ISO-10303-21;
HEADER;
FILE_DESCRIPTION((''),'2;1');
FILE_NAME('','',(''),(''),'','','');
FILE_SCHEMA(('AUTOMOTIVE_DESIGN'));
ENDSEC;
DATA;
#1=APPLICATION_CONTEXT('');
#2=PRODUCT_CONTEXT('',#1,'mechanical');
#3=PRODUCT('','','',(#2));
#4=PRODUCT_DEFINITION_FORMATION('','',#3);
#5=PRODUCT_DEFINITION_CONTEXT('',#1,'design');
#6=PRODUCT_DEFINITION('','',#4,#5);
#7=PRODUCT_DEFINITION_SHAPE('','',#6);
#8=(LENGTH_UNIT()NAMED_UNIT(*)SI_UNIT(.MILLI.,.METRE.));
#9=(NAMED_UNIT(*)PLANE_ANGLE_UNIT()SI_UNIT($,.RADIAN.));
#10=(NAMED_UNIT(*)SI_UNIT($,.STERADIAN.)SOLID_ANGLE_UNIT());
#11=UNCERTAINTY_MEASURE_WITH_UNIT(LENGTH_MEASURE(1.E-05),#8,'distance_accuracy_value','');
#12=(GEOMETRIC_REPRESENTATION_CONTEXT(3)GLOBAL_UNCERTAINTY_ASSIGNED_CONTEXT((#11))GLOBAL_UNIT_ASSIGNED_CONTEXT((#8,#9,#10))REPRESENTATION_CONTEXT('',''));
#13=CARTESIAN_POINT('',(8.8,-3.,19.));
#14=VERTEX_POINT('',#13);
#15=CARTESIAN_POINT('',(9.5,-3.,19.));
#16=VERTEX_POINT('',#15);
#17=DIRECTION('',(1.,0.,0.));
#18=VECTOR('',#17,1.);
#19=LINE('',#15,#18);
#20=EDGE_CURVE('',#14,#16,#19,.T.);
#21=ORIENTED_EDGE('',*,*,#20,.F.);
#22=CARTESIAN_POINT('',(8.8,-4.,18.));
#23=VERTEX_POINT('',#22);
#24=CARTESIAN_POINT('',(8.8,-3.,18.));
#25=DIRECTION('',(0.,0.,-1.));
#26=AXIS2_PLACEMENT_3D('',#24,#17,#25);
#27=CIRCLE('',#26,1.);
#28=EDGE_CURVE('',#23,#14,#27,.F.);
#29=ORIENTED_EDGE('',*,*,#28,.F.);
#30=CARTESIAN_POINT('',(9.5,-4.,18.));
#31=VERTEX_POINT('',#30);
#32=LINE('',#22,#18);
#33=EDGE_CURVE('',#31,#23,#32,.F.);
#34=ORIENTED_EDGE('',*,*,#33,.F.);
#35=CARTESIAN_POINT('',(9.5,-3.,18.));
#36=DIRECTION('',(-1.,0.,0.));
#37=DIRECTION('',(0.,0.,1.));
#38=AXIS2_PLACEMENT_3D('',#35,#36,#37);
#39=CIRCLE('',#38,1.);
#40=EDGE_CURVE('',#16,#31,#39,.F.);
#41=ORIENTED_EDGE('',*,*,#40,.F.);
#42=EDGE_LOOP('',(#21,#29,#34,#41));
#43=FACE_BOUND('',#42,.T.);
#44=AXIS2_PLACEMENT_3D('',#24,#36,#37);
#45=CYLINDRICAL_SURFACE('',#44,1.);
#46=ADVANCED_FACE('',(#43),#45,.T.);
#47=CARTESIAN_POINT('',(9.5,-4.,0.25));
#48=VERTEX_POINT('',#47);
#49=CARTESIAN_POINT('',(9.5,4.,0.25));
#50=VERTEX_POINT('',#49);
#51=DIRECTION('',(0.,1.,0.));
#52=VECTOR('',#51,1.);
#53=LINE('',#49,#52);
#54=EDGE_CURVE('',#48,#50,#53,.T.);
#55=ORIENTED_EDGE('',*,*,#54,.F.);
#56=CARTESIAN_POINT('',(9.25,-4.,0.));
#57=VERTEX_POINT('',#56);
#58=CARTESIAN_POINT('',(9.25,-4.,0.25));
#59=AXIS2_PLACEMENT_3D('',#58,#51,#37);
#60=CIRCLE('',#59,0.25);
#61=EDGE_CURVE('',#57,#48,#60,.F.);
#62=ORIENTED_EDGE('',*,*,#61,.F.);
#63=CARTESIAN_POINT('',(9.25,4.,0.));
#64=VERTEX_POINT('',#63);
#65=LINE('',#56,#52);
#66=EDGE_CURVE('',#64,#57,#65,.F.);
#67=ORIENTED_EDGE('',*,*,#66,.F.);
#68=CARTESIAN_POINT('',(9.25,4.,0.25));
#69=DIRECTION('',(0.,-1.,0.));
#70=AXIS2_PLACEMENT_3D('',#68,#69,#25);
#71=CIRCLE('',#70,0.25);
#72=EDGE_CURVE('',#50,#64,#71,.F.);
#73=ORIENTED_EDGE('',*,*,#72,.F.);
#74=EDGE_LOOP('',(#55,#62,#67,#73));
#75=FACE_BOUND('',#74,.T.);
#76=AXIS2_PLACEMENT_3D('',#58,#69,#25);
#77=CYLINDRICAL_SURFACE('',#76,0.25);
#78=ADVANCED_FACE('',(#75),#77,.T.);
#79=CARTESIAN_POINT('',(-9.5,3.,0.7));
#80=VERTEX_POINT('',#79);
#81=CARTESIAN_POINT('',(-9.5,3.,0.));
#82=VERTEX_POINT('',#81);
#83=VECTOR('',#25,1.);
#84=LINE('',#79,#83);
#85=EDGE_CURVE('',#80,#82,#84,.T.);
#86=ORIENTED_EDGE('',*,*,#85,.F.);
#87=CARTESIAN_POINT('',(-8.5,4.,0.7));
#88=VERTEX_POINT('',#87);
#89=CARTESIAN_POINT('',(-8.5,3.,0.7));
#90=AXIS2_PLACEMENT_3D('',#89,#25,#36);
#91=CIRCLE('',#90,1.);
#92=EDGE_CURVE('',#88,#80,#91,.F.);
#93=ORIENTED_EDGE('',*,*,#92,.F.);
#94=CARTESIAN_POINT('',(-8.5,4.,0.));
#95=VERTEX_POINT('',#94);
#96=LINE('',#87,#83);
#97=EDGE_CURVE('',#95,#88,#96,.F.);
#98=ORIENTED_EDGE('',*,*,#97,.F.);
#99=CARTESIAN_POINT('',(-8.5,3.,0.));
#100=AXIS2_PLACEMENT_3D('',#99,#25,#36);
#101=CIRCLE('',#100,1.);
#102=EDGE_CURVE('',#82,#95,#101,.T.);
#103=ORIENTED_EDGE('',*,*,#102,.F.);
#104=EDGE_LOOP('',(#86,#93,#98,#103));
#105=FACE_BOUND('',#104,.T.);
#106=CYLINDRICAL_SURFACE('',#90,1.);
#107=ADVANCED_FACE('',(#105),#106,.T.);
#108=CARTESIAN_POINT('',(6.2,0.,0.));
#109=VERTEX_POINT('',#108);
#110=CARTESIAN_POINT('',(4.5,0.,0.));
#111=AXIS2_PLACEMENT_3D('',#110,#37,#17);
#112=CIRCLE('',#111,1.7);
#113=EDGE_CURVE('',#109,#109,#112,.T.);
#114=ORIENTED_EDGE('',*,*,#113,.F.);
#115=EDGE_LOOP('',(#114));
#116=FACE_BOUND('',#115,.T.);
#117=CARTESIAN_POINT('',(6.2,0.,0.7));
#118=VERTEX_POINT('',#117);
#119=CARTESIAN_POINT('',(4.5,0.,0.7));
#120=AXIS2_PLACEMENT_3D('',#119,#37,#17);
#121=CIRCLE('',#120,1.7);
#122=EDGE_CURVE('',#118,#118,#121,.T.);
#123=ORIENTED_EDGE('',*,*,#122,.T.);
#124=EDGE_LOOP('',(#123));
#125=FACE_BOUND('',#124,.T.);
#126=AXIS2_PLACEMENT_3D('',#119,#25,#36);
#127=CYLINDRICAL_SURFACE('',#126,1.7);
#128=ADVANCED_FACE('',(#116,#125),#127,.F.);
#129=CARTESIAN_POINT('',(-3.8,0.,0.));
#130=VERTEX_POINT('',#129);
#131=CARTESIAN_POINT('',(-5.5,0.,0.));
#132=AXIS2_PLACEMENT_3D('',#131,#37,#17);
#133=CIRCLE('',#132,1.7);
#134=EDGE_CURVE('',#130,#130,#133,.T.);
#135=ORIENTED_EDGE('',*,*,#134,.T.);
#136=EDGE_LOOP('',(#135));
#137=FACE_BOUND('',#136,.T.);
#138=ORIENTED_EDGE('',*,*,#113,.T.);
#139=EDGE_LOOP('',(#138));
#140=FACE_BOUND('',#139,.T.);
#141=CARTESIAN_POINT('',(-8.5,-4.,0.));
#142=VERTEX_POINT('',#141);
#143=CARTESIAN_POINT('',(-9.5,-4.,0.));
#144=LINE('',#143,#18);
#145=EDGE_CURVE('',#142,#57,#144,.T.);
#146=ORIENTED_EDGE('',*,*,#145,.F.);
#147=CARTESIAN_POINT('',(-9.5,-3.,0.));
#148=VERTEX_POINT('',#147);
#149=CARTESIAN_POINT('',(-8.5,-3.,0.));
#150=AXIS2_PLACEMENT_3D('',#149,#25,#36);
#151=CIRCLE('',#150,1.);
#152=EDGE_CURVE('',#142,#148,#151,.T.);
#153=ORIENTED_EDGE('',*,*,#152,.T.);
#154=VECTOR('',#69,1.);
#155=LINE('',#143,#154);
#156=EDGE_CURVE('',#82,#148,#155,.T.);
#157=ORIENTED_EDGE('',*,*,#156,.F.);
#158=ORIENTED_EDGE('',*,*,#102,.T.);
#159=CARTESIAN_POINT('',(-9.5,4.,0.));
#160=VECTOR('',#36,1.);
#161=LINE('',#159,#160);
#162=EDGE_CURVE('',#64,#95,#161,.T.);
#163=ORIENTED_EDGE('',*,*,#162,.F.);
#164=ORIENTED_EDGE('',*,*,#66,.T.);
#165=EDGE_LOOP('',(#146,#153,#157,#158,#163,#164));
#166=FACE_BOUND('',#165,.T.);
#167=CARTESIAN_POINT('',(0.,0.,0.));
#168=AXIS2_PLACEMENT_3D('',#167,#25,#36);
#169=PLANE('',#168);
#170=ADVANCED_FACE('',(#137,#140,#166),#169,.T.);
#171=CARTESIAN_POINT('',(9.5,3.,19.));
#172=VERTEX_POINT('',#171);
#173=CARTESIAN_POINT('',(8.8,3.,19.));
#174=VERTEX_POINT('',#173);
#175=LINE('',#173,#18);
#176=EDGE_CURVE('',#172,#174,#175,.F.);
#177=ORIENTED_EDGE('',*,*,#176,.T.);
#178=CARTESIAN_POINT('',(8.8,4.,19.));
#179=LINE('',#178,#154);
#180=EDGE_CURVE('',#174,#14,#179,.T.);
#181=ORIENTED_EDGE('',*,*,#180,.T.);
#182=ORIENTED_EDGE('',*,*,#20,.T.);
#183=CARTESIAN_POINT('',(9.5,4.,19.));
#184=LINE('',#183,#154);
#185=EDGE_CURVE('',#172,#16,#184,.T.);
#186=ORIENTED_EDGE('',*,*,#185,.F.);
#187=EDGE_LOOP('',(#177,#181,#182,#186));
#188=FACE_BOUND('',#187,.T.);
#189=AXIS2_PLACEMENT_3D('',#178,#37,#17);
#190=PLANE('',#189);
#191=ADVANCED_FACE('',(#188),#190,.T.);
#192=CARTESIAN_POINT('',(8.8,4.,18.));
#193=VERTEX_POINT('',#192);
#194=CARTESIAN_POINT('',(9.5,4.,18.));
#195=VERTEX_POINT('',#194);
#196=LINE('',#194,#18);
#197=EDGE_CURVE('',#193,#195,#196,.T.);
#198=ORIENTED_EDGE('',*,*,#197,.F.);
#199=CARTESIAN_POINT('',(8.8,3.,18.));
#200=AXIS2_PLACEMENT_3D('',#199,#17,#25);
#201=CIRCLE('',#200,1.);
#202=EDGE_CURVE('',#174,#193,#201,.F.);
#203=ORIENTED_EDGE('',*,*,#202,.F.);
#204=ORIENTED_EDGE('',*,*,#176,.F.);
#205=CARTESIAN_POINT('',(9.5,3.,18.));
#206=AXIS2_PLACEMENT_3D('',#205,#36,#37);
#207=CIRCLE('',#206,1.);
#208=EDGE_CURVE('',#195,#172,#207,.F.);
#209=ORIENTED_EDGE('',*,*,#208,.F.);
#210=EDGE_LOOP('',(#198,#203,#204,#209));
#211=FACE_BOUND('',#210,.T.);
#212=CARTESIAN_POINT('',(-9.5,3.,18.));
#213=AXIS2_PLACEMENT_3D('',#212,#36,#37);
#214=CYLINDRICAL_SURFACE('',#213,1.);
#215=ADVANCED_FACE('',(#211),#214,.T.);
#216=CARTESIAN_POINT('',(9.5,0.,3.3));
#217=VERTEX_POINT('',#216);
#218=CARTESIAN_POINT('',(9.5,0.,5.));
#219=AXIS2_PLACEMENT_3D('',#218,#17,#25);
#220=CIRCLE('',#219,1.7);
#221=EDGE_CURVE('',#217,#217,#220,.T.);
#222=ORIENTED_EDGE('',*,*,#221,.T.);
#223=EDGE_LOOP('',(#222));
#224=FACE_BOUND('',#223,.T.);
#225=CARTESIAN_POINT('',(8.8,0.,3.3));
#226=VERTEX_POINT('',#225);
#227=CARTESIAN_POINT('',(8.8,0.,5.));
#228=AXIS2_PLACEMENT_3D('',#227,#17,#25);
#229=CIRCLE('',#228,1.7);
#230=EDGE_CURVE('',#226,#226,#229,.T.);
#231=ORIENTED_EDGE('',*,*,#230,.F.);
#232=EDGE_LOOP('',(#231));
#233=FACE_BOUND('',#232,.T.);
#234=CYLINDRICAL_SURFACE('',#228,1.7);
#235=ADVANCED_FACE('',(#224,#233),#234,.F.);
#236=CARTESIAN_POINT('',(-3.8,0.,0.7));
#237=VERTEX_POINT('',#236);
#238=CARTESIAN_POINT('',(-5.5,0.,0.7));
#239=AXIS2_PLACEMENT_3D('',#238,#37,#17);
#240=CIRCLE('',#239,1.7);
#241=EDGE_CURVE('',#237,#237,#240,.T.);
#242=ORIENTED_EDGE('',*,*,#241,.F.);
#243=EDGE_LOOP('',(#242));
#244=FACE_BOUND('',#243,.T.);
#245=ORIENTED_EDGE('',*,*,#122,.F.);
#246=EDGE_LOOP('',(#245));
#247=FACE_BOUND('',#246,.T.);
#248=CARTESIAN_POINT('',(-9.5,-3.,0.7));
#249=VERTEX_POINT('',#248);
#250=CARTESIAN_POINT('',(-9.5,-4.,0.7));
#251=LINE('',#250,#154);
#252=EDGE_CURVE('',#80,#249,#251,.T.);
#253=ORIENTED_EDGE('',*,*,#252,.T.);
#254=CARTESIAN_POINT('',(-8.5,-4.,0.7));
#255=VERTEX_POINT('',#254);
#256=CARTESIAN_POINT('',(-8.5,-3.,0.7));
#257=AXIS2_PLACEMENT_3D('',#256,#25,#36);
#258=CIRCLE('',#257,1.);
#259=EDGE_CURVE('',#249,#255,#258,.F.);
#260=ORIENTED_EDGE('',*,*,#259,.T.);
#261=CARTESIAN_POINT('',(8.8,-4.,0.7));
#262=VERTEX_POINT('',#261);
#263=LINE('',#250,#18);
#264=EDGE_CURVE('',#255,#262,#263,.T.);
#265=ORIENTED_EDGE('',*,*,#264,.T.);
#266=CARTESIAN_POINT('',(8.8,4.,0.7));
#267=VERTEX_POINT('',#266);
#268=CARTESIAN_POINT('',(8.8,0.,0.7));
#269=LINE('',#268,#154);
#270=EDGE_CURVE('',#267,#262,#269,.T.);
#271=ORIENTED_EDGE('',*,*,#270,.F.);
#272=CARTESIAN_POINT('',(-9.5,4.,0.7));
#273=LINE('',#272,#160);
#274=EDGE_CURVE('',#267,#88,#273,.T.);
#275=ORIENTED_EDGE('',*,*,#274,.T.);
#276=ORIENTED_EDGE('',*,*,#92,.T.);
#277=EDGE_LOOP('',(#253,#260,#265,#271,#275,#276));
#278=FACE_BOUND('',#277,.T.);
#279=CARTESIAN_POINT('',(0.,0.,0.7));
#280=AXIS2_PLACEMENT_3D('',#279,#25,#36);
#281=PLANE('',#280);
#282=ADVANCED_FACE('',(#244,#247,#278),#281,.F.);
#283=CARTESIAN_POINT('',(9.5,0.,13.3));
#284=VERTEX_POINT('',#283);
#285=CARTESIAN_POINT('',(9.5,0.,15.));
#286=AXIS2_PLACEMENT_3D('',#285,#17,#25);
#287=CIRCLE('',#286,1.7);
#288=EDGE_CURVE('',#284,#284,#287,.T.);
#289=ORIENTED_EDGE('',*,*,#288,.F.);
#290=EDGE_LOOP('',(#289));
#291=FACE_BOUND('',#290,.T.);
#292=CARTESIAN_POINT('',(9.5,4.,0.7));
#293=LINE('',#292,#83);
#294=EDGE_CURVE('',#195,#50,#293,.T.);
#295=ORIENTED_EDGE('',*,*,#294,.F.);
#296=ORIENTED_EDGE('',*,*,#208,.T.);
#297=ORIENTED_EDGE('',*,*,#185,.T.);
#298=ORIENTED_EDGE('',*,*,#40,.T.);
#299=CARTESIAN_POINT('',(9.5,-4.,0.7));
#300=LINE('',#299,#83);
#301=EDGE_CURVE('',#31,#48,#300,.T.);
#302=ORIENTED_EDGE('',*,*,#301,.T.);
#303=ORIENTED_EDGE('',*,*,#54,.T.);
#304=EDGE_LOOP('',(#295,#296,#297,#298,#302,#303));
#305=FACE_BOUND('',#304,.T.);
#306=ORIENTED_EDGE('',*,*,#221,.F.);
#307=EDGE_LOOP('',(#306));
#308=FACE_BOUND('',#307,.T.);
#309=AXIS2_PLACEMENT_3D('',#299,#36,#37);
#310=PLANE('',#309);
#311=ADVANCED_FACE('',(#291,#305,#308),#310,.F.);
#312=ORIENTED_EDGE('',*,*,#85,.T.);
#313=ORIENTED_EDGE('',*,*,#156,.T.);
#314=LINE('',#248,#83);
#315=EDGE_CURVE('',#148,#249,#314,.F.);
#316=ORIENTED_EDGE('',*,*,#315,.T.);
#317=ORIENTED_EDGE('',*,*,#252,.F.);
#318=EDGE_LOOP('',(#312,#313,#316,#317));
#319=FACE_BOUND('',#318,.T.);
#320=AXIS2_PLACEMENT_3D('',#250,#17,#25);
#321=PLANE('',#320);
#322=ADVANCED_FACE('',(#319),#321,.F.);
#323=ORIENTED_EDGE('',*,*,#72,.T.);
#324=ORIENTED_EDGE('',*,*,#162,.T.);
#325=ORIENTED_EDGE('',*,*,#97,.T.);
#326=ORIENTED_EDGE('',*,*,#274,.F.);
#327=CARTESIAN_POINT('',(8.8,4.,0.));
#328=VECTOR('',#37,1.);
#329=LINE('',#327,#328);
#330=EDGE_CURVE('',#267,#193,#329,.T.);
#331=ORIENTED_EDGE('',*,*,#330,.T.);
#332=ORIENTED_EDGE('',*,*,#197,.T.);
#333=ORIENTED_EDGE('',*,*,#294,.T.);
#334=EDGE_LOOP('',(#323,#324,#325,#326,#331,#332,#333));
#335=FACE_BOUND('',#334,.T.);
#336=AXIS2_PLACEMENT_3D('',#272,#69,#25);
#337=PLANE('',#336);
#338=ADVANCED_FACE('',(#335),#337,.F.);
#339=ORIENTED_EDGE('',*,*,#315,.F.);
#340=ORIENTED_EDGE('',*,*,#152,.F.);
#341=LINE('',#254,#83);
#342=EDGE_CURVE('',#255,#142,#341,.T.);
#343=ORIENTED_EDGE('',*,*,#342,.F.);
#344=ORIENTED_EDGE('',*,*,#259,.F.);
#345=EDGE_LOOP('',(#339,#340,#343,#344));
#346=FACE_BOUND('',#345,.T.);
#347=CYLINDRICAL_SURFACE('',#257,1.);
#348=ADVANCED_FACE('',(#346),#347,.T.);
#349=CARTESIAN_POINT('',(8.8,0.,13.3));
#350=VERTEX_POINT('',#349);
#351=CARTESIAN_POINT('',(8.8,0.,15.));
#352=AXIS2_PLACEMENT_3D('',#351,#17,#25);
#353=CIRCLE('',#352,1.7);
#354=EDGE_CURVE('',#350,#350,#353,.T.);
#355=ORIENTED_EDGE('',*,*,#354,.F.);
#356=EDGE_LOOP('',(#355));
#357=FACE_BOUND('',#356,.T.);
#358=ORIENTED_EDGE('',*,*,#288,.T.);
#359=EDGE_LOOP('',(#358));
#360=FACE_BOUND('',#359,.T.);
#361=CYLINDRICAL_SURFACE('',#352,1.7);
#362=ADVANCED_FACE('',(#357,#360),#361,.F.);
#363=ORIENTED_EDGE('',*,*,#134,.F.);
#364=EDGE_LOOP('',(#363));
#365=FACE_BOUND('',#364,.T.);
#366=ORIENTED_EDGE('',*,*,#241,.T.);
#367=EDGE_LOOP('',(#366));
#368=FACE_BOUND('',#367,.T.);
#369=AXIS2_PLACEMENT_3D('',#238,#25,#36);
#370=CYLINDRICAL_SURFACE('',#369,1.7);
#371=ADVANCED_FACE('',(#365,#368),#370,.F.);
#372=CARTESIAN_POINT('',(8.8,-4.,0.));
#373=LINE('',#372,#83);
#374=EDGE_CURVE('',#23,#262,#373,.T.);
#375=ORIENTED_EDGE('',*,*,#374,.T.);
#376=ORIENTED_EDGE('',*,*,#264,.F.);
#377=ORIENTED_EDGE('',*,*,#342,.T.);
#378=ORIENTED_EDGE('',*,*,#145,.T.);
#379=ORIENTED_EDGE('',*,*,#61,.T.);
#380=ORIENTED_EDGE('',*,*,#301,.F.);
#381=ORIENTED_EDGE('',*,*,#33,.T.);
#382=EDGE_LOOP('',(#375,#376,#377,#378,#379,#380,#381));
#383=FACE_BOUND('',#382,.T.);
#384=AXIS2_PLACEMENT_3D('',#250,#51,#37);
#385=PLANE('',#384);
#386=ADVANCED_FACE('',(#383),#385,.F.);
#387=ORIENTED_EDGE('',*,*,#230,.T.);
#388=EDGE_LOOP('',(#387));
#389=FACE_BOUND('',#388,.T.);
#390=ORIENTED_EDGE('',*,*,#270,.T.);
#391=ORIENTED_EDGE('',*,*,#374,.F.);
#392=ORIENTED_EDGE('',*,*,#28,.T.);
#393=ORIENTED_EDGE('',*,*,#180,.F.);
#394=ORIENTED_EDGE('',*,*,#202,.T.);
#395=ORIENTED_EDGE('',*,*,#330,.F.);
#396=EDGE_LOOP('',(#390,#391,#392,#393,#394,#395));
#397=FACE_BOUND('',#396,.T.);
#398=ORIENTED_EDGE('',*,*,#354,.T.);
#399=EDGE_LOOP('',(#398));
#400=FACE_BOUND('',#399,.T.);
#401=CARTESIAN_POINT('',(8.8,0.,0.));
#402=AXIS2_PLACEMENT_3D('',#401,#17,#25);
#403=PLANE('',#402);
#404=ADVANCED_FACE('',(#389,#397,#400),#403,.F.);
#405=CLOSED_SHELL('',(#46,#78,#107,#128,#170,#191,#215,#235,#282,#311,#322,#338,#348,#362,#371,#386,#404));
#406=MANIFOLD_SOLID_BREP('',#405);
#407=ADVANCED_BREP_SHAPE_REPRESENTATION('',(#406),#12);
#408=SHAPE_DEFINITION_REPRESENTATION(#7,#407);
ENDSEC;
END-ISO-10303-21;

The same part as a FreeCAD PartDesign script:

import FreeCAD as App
import Part
import Sketcher
Q = App.Units.Quantity


def edges_at(feature, points):
    """Names of the edges that pass closest to the given points."""
    edges = feature.Shape.Edges
    near = lambda p: min(range(len(edges)), key=lambda i: edges[i].distToShape(Part.Vertex(*p))[0])
    return sorted({f"Edge{near(p) + 1}" for p in points})

doc = App.newDocument("Part")
body = doc.addObject("PartDesign::Body", "Body")

sketch1 = body.newObject("Sketcher::SketchObject", "Sketch")
sketch1.AttachmentSupport = (doc.getObject("XY_Plane"), [""])
sketch1.MapMode = "FlatFace"
sketch1.addGeometry(Part.LineSegment(App.Vector(-9.5, 4, 0), App.Vector(-9.5, -4, 0)), False)
sketch1.addGeometry(Part.LineSegment(App.Vector(-9.5, -4, 0), App.Vector(9.5, -4, 0)), False)
sketch1.addGeometry(Part.LineSegment(App.Vector(9.5, -4, 0), App.Vector(9.5, 4, 0)), False)
sketch1.addGeometry(Part.LineSegment(App.Vector(9.5, 4, 0), App.Vector(-9.5, 4, 0)), False)
sketch1.addGeometry(Part.Circle(App.Vector(-5.5, 0, 0), App.Vector(0, 0, 1), 1.7), False)
sketch1.addGeometry(Part.Circle(App.Vector(4.5, 0, 0), App.Vector(0, 0, 1), 1.7), False)
sketch1.addConstraint(Sketcher.Constraint("Coincident", 0, 2, 1, 1))
sketch1.addConstraint(Sketcher.Constraint("Coincident", 1, 2, 2, 1))
sketch1.addConstraint(Sketcher.Constraint("Coincident", 2, 2, 3, 1))
sketch1.addConstraint(Sketcher.Constraint("Coincident", 3, 2, 0, 1))
sketch1.addConstraint(Sketcher.Constraint("Vertical", 0))
sketch1.addConstraint(Sketcher.Constraint("Horizontal", 1))
sketch1.addConstraint(Sketcher.Constraint("Vertical", 2))
sketch1.addConstraint(Sketcher.Constraint("Horizontal", 3))
sketch1.addConstraint(Sketcher.Constraint("Equal", 4, 5))
sketch1.addConstraint(Sketcher.Constraint("Symmetric", 0, 2, 2, 2, -1, 1))
sketch1.addConstraint(Sketcher.Constraint("PointOnObject", 4, 3, -1))
sketch1.addConstraint(Sketcher.Constraint("PointOnObject", 5, 3, -1))
sketch1.addConstraint(Sketcher.Constraint("Diameter", 4, Q("3.4 mm")))
sketch1.addConstraint(Sketcher.Constraint("DistanceX", 1, 1, 1, 2, Q("19 mm")))
sketch1.addConstraint(Sketcher.Constraint("DistanceY", 0, 2, 0, 1, Q("8 mm")))
sketch1.addConstraint(Sketcher.Constraint("DistanceX", 4, 3, 5, 3, Q("10 mm")))
sketch1.addConstraint(Sketcher.Constraint("DistanceX", 0, 2, 4, 3, Q("4 mm")))
pad1 = body.newObject("PartDesign::Pad", "Pad")
pad1.Profile = sketch1
pad1.Length = 0.7

sketch2 = body.newObject("Sketcher::SketchObject", "Sketch001")
sketch2.AttachmentSupport = (doc.getObject("YZ_Plane"), [""])
sketch2.MapMode = "FlatFace"
sketch2.AttachmentOffset = App.Placement(App.Vector(0, 0, 9.5), App.Rotation())
sketch2.addGeometry(Part.LineSegment(App.Vector(4, 19, 0), App.Vector(-4, 19, 0)), False)
sketch2.addGeometry(Part.LineSegment(App.Vector(-4, 19, 0), App.Vector(-4, 0, 0)), False)
sketch2.addGeometry(Part.LineSegment(App.Vector(-4, 0, 0), App.Vector(4, 0, 0)), False)
sketch2.addGeometry(Part.LineSegment(App.Vector(4, 0, 0), App.Vector(4, 19, 0)), False)
sketch2.addGeometry(Part.Circle(App.Vector(0, 15, 0), App.Vector(0, 0, 1), 1.7), False)
sketch2.addGeometry(Part.Circle(App.Vector(0, 5, 0), App.Vector(0, 0, 1), 1.7), False)
sketch2.addConstraint(Sketcher.Constraint("Coincident", 0, 2, 1, 1))
sketch2.addConstraint(Sketcher.Constraint("Coincident", 1, 2, 2, 1))
sketch2.addConstraint(Sketcher.Constraint("Coincident", 2, 2, 3, 1))
sketch2.addConstraint(Sketcher.Constraint("Coincident", 3, 2, 0, 1))
sketch2.addConstraint(Sketcher.Constraint("Horizontal", 0))
sketch2.addConstraint(Sketcher.Constraint("Vertical", 1))
sketch2.addConstraint(Sketcher.Constraint("Horizontal", 2))
sketch2.addConstraint(Sketcher.Constraint("Vertical", 3))
sketch2.addConstraint(Sketcher.Constraint("Equal", 4, 5))
sketch2.addConstraint(Sketcher.Constraint("Symmetric", 1, 2, 2, 2, -1, 1))
sketch2.addConstraint(Sketcher.Constraint("PointOnObject", 4, 3, -2))
sketch2.addConstraint(Sketcher.Constraint("PointOnObject", 5, 3, -2))
sketch2.addConstraint(Sketcher.Constraint("Diameter", 4, Q("3.4 mm")))
sketch2.addConstraint(Sketcher.Constraint("DistanceX", 0, 2, 0, 1, Q("8 mm")))
sketch2.addConstraint(Sketcher.Constraint("DistanceY", 1, 2, 1, 1, Q("19 mm")))
sketch2.addConstraint(Sketcher.Constraint("DistanceY", -1, 1, 4, 3, Q("15 mm")))
sketch2.addConstraint(Sketcher.Constraint("DistanceY", -1, 1, 5, 3, Q("5 mm")))
pad2 = body.newObject("PartDesign::Pad", "Pad001")
pad2.Profile = sketch2
pad2.Length = 0.7
pad2.Reversed = True
doc.recompute()

fillet = body.newObject("PartDesign::Fillet", "Fillet")
fillet.Base = (pad2, edges_at(pad2, [
    (9.15, 4, 19),
    (9.15, -4, 19),
    (-9.5, -4, 0.35),
    (-9.5, 4, 0.35),
]))
fillet.Radius = 1
doc.recompute()

fillet2 = body.newObject("PartDesign::Fillet", "Fillet001")
fillet2.Base = (fillet, edges_at(fillet, [(9.5, 0, 0)]))
fillet2.Radius = 0.25

doc.recompute()
